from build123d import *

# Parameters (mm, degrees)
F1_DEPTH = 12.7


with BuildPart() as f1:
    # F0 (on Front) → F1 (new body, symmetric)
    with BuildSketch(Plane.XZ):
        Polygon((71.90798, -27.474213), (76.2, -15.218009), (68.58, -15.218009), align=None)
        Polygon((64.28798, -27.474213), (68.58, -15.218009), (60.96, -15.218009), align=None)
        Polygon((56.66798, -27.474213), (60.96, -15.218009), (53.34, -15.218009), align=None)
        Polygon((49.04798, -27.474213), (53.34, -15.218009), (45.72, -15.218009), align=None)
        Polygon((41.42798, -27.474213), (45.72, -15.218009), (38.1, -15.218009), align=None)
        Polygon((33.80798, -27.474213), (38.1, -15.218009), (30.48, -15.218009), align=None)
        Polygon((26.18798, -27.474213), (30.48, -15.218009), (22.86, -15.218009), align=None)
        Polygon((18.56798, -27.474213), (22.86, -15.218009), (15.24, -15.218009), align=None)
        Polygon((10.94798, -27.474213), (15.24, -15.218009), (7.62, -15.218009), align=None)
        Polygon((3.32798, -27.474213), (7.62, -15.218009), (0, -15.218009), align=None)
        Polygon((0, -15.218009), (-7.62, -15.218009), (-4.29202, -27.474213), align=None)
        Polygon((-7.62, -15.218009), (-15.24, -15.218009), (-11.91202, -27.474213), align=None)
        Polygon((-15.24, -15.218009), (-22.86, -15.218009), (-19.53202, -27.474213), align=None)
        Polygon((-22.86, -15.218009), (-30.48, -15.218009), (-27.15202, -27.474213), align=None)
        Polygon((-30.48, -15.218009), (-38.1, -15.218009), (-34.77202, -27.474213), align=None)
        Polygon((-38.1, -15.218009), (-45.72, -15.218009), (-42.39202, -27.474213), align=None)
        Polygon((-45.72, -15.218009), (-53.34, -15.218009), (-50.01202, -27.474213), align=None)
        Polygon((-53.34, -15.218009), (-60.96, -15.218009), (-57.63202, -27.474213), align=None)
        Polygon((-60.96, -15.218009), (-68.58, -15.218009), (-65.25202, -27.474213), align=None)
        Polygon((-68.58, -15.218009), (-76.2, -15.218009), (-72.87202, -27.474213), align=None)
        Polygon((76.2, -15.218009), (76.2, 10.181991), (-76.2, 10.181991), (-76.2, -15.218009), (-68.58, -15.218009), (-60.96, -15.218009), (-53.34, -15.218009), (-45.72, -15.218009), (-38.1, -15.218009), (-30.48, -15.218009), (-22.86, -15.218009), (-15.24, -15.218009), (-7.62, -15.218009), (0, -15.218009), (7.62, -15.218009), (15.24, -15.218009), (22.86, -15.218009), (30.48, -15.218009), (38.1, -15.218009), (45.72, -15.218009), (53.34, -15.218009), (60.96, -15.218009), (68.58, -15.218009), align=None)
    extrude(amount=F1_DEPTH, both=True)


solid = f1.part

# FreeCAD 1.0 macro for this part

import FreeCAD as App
import Part
import Sketcher

V = App.Vector
Q = App.Units.Quantity


def add_polygon(sketch, points):
    """Adds a closed chain of lines whose ends are joined by coincident constraints."""
    first, n = sketch.GeometryCount, len(points)
    for a, b in zip(points, points[1:] + points[:1]):
        sketch.addGeometry(Part.LineSegment(App.Vector(*a, 0), App.Vector(*b, 0)), False)
    for i in range(n):
        sketch.addConstraint(Sketcher.Constraint("Coincident", first + i, 2, first + (i + 1) % n, 1))

doc = App.newDocument("Part")
body = doc.addObject("PartDesign::Body", "Body")

# Sketch on XZ plane
sketch1 = body.newObject("Sketcher::SketchObject", "Sketch")
sketch1.AttachmentSupport = (doc.getObject("XZ_Plane"), [""])
sketch1.MapMode = "FlatFace"
add_polygon(sketch1, [(72, -27), (76, -15), (76, 10), (-76, 10), (-76, -15), (-73, -27), (-69, -15), (-65, -27), (-61, -15), (-58, -27), (-53, -15), (-50, -27), (-46, -15), (-42, -27), (-38, -15), (-35, -27), (-30, -15), (-27, -27), (-23, -15), (-20, -27), (-15, -15), (-12, -27), (-8, -15), (-4, -27), (0, -15), (3, -27), (8, -15), (11, -27), (15, -15), (19, -27), (23, -15), (26, -27), (30, -15), (34, -27), (38, -15), (41, -27), (46, -15), (49, -27), (53, -15), (57, -27), (61, -15), (64, -27), (69, -15)])  # lines 0-42
sketch1.addConstraint([
    Sketcher.Constraint("Vertical", 1),
    Sketcher.Constraint("Horizontal", 2),
    Sketcher.Constraint("Vertical", 3),
    Sketcher.Constraint("Symmetric", 0, 2, 3, 2, -2),
    Sketcher.Constraint("Symmetric", 21, 2, 25, 2, -2),
    Sketcher.Constraint("Symmetric", 19, 2, 27, 2, -2),
    Sketcher.Constraint("Symmetric", 17, 2, 29, 2, -2),
    Sketcher.Constraint("Symmetric", 15, 2, 31, 2, -2),
    Sketcher.Constraint("Symmetric", 13, 2, 33, 2, -2),
    Sketcher.Constraint("Symmetric", 11, 2, 35, 2, -2),
    Sketcher.Constraint("Symmetric", 9, 2, 37, 2, -2),
    Sketcher.Constraint("Symmetric", 7, 2, 39, 2, -2),
    Sketcher.Constraint("Symmetric", 5, 2, 41, 2, -2),
    Sketcher.Constraint("PointOnObject", 23, 2, -2),
    Sketcher.Constraint("Parallel", 0, 5),
    Sketcher.Constraint("Parallel", 4, 6),
    Sketcher.Constraint("Parallel", 5, 7),
    Sketcher.Constraint("Parallel", 6, 8),
    Sketcher.Constraint("Parallel", 7, 9),
    Sketcher.Constraint("Parallel", 8, 10),
    Sketcher.Constraint("Parallel", 9, 11),
    Sketcher.Constraint("Parallel", 10, 12),
    Sketcher.Constraint("Parallel", 11, 13),
    Sketcher.Constraint("Parallel", 12, 14),
    Sketcher.Constraint("Parallel", 13, 15),
    Sketcher.Constraint("Parallel", 14, 16),
    Sketcher.Constraint("Parallel", 15, 17),
    Sketcher.Constraint("Parallel", 16, 18),
    Sketcher.Constraint("Parallel", 17, 19),
    Sketcher.Constraint("Parallel", 18, 20),
    Sketcher.Constraint("Parallel", 19, 21),
    Sketcher.Constraint("Parallel", 20, 22),
    Sketcher.Constraint("Parallel", 21, 23),
    Sketcher.Constraint("Parallel", 22, 24),
    Sketcher.Constraint("Parallel", 23, 25),
    Sketcher.Constraint("Parallel", 24, 26),
    Sketcher.Constraint("Parallel", 25, 27),
    Sketcher.Constraint("Parallel", 26, 28),
    Sketcher.Constraint("Parallel", 27, 29),
    Sketcher.Constraint("Parallel", 28, 30),
    Sketcher.Constraint("Parallel", 29, 31),
    Sketcher.Constraint("Parallel", 30, 32),
    Sketcher.Constraint("Parallel", 31, 33),
    Sketcher.Constraint("Parallel", 32, 34),
    Sketcher.Constraint("Parallel", 33, 35),
    Sketcher.Constraint("Parallel", 34, 36),
    Sketcher.Constraint("Parallel", 35, 37),
    Sketcher.Constraint("Parallel", 36, 38),
    Sketcher.Constraint("Parallel", 37, 39),
    Sketcher.Constraint("Parallel", 38, 40),
    Sketcher.Constraint("Parallel", 39, 41),
    Sketcher.Constraint("Parallel", 40, 42),
    Sketcher.Constraint("Horizontal", 3, 2, 5, 2),
    Sketcher.Constraint("Horizontal", 4, 2, 6, 2),
    Sketcher.Constraint("Horizontal", 5, 2, 7, 2),
    Sketcher.Constraint("Horizontal", 6, 2, 8, 2),
    Sketcher.Constraint("Horizontal", 7, 2, 9, 2),
    Sketcher.Constraint("Horizontal", 8, 2, 10, 2),
    Sketcher.Constraint("Horizontal", 9, 2, 11, 2),
    Sketcher.Constraint("Horizontal", 10, 2, 12, 2),
    Sketcher.Constraint("Horizontal", 11, 2, 13, 2),
    Sketcher.Constraint("Horizontal", 12, 2, 14, 2),
    Sketcher.Constraint("Horizontal", 13, 2, 15, 2),
    Sketcher.Constraint("Horizontal", 14, 2, 16, 2),
    Sketcher.Constraint("Horizontal", 15, 2, 17, 2),
    Sketcher.Constraint("Horizontal", 16, 2, 18, 2),
    Sketcher.Constraint("Horizontal", 17, 2, 19, 2),
    Sketcher.Constraint("Horizontal", 18, 2, 20, 2),
    Sketcher.Constraint("Horizontal", 19, 2, 21, 2),
    Sketcher.Constraint("Horizontal", 20, 2, 22, 2),
    Sketcher.Constraint("Horizontal", 21, 2, 23, 2),
    Sketcher.Constraint("DistanceX", 2, 2, 2, 1, Q("6 in")),
    Sketcher.Constraint("DistanceY", 1, 1, 1, 2, Q("1 in")),
    Sketcher.Constraint("Distance", 4, Q("0.5 in")),
    Sketcher.Constraint("Distance", 0, Q("12.985991 mm")),
    Sketcher.Constraint("DistanceY", 0, 2, -1, 1, Q("15.218009 mm")),
])
pad1 = body.newObject("PartDesign::Pad", "Pad")
pad1.Profile = sketch1
pad1.Length = Q("1 in")
pad1.Midplane = True

doc.recompute()
